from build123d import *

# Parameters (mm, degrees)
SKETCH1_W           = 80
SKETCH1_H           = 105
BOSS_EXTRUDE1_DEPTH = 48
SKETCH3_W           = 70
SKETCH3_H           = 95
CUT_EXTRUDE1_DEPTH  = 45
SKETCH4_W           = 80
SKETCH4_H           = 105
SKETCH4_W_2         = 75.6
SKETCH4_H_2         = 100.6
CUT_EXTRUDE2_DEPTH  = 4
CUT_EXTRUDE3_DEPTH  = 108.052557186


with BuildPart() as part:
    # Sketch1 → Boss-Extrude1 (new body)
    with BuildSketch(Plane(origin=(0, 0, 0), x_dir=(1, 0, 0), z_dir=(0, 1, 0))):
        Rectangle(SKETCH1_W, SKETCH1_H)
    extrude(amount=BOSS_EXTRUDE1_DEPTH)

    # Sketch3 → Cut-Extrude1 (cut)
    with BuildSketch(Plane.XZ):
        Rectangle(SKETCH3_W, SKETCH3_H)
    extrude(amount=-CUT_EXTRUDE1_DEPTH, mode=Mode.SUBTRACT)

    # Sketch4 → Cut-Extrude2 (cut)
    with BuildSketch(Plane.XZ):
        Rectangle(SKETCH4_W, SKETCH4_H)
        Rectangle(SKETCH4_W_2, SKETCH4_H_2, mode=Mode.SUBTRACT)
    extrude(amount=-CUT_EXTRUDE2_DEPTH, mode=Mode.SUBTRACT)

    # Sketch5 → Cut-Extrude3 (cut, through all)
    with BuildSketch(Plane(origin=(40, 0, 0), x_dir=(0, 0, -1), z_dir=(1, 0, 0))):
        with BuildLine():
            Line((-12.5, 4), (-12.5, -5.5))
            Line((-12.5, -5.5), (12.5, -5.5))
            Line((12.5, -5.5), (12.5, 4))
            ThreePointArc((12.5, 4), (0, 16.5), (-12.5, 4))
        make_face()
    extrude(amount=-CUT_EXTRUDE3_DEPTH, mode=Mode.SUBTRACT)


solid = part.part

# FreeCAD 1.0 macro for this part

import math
import FreeCAD as App
import Part
import Sketcher

V = App.Vector


def add_polygon(sketch, points):
    """Adds a closed chain of lines whose ends are joined by coincident constraints."""
    first, n = sketch.GeometryCount, len(points)
    for a, b in zip(points, points[1:] + points[:1]):
        sketch.addGeometry(Part.LineSegment(App.Vector(*a, 0), App.Vector(*b, 0)), False)
    for i in range(n):
        sketch.addConstraint(Sketcher.Constraint("Coincident", first + i, 2, first + (i + 1) % n, 1))

doc = App.newDocument("Part")
body = doc.addObject("PartDesign::Body", "Body")

# Sketch on XZ plane
sketch1 = body.newObject("Sketcher::SketchObject", "Sketch")
sketch1.AttachmentSupport = (doc.getObject("XZ_Plane"), [""])
sketch1.MapMode = "FlatFace"
add_polygon(sketch1, [(-40, -52), (-40, 52), (40, 52), (40, -52)])  # lines 0-3
sketch1.addConstraint([
    Sketcher.Constraint("Vertical", 0),
    Sketcher.Constraint("Horizontal", 1),
    Sketcher.Constraint("Vertical", 2),
    Sketcher.Constraint("Horizontal", 3),
    Sketcher.Constraint("Symmetric", 0, 2, 2, 2, -1, 1),
    Sketcher.Constraint("DistanceX", 1, 1, 1, 2, 80.0),
    Sketcher.Constraint("DistanceY", 0, 1, 0, 2, 105.0),
])
pad1 = body.newObject("PartDesign::Pad", "Pad")
pad1.Profile = sketch1
pad1.Length = 48
pad1.Reversed = True

# Sketch on XZ plane
sketch2 = body.newObject("Sketcher::SketchObject", "Sketch001")
sketch2.AttachmentSupport = (doc.getObject("XZ_Plane"), [""])
sketch2.MapMode = "FlatFace"
add_polygon(sketch2, [(-35, 48), (-35, -48), (35, -48), (35, 48)])  # lines 0-3
sketch2.addConstraint([
    Sketcher.Constraint("Vertical", 0),
    Sketcher.Constraint("Horizontal", 1),
    Sketcher.Constraint("Vertical", 2),
    Sketcher.Constraint("Horizontal", 3),
    Sketcher.Constraint("Symmetric", 0, 2, 2, 2, -1, 1),
    Sketcher.Constraint("DistanceX", 1, 1, 1, 2, 70.0),
    Sketcher.Constraint("DistanceY", 0, 2, 0, 1, 95.0),
])
pocket1 = body.newObject("PartDesign::Pocket", "Pocket")
pocket1.Profile = sketch2
pocket1.Length = 45

# Sketch on XZ plane
sketch3 = body.newObject("Sketcher::SketchObject", "Sketch002")
sketch3.AttachmentSupport = (doc.getObject("XZ_Plane"), [""])
sketch3.MapMode = "FlatFace"
add_polygon(sketch3, [(-40, 52), (-40, -52), (40, -52), (40, 52)])  # lines 0-3
add_polygon(sketch3, [(38, -50), (-38, -50), (-38, 50), (38, 50)])  # lines 4-7
sketch3.addConstraint([
    Sketcher.Constraint("Vertical", 0),
    Sketcher.Constraint("Horizontal", 1),
    Sketcher.Constraint("Vertical", 2),
    Sketcher.Constraint("Horizontal", 3),
    Sketcher.Constraint("Horizontal", 4),
    Sketcher.Constraint("Vertical", 5),
    Sketcher.Constraint("Horizontal", 6),
    Sketcher.Constraint("Vertical", 7),
    Sketcher.Constraint("Symmetric", 0, 2, 2, 2, -1, 1),
    Sketcher.Constraint("Symmetric", 4, 2, 6, 2, -1, 1),
    Sketcher.Constraint("DistanceX", 1, 1, 1, 2, 80.0),
    Sketcher.Constraint("DistanceY", 0, 2, 0, 1, 105.0),
    Sketcher.Constraint("DistanceX", 4, 2, 4, 1, 75.6),
    Sketcher.Constraint("DistanceY", 5, 1, 5, 2, 100.6),
])
pocket2 = body.newObject("PartDesign::Pocket", "Pocket001")
pocket2.Profile = sketch3
pocket2.Length = 4

# Sketch on YZ plane
sketch4 = body.newObject("Sketcher::SketchObject", "Sketch003")
sketch4.AttachmentSupport = (doc.getObject("YZ_Plane"), [""])
sketch4.MapMode = "FlatFace"
sketch4.AttachmentOffset = App.Placement(V(0, 0, 40), App.Rotation())
sketch4.addGeometry([
    Part.LineSegment(V(4, 12, 0), V(-6, 12, 0)),
    Part.LineSegment(V(-6, 12, 0), V(-6, -12, 0)),
    Part.LineSegment(V(-6, -12, 0), V(4, -12, 0)),
    Part.ArcOfCircle(Part.Circle(V(4, 0, 0), V(0, 0, 1), 12), math.radians(-90), math.radians(90)),
], False)
sketch4.addConstraint([
    Sketcher.Constraint("Coincident", 0, 2, 1, 1),
    Sketcher.Constraint("Coincident", 1, 2, 2, 1),
    Sketcher.Constraint("Tangent", 2, 2, 3, 1),
    Sketcher.Constraint("Tangent", 3, 2, 0, 1),
    Sketcher.Constraint("Horizontal", 0),
    Sketcher.Constraint("Vertical", 1),
    Sketcher.Constraint("Horizontal", 2),
    Sketcher.Constraint("PointOnObject", 3, 3, -1),
    Sketcher.Constraint("Radius", 3, 12.5),
    Sketcher.Constraint("DistanceX", 0, 2, 0, 1, 9.5),
    Sketcher.Constraint("DistanceX", -1, 1, 3, 3, 4.0),
])
pocket3 = body.newObject("PartDesign::Pocket", "Pocket002")
pocket3.Profile = sketch4
pocket3.Type = "ThroughAll"

doc.recompute()
